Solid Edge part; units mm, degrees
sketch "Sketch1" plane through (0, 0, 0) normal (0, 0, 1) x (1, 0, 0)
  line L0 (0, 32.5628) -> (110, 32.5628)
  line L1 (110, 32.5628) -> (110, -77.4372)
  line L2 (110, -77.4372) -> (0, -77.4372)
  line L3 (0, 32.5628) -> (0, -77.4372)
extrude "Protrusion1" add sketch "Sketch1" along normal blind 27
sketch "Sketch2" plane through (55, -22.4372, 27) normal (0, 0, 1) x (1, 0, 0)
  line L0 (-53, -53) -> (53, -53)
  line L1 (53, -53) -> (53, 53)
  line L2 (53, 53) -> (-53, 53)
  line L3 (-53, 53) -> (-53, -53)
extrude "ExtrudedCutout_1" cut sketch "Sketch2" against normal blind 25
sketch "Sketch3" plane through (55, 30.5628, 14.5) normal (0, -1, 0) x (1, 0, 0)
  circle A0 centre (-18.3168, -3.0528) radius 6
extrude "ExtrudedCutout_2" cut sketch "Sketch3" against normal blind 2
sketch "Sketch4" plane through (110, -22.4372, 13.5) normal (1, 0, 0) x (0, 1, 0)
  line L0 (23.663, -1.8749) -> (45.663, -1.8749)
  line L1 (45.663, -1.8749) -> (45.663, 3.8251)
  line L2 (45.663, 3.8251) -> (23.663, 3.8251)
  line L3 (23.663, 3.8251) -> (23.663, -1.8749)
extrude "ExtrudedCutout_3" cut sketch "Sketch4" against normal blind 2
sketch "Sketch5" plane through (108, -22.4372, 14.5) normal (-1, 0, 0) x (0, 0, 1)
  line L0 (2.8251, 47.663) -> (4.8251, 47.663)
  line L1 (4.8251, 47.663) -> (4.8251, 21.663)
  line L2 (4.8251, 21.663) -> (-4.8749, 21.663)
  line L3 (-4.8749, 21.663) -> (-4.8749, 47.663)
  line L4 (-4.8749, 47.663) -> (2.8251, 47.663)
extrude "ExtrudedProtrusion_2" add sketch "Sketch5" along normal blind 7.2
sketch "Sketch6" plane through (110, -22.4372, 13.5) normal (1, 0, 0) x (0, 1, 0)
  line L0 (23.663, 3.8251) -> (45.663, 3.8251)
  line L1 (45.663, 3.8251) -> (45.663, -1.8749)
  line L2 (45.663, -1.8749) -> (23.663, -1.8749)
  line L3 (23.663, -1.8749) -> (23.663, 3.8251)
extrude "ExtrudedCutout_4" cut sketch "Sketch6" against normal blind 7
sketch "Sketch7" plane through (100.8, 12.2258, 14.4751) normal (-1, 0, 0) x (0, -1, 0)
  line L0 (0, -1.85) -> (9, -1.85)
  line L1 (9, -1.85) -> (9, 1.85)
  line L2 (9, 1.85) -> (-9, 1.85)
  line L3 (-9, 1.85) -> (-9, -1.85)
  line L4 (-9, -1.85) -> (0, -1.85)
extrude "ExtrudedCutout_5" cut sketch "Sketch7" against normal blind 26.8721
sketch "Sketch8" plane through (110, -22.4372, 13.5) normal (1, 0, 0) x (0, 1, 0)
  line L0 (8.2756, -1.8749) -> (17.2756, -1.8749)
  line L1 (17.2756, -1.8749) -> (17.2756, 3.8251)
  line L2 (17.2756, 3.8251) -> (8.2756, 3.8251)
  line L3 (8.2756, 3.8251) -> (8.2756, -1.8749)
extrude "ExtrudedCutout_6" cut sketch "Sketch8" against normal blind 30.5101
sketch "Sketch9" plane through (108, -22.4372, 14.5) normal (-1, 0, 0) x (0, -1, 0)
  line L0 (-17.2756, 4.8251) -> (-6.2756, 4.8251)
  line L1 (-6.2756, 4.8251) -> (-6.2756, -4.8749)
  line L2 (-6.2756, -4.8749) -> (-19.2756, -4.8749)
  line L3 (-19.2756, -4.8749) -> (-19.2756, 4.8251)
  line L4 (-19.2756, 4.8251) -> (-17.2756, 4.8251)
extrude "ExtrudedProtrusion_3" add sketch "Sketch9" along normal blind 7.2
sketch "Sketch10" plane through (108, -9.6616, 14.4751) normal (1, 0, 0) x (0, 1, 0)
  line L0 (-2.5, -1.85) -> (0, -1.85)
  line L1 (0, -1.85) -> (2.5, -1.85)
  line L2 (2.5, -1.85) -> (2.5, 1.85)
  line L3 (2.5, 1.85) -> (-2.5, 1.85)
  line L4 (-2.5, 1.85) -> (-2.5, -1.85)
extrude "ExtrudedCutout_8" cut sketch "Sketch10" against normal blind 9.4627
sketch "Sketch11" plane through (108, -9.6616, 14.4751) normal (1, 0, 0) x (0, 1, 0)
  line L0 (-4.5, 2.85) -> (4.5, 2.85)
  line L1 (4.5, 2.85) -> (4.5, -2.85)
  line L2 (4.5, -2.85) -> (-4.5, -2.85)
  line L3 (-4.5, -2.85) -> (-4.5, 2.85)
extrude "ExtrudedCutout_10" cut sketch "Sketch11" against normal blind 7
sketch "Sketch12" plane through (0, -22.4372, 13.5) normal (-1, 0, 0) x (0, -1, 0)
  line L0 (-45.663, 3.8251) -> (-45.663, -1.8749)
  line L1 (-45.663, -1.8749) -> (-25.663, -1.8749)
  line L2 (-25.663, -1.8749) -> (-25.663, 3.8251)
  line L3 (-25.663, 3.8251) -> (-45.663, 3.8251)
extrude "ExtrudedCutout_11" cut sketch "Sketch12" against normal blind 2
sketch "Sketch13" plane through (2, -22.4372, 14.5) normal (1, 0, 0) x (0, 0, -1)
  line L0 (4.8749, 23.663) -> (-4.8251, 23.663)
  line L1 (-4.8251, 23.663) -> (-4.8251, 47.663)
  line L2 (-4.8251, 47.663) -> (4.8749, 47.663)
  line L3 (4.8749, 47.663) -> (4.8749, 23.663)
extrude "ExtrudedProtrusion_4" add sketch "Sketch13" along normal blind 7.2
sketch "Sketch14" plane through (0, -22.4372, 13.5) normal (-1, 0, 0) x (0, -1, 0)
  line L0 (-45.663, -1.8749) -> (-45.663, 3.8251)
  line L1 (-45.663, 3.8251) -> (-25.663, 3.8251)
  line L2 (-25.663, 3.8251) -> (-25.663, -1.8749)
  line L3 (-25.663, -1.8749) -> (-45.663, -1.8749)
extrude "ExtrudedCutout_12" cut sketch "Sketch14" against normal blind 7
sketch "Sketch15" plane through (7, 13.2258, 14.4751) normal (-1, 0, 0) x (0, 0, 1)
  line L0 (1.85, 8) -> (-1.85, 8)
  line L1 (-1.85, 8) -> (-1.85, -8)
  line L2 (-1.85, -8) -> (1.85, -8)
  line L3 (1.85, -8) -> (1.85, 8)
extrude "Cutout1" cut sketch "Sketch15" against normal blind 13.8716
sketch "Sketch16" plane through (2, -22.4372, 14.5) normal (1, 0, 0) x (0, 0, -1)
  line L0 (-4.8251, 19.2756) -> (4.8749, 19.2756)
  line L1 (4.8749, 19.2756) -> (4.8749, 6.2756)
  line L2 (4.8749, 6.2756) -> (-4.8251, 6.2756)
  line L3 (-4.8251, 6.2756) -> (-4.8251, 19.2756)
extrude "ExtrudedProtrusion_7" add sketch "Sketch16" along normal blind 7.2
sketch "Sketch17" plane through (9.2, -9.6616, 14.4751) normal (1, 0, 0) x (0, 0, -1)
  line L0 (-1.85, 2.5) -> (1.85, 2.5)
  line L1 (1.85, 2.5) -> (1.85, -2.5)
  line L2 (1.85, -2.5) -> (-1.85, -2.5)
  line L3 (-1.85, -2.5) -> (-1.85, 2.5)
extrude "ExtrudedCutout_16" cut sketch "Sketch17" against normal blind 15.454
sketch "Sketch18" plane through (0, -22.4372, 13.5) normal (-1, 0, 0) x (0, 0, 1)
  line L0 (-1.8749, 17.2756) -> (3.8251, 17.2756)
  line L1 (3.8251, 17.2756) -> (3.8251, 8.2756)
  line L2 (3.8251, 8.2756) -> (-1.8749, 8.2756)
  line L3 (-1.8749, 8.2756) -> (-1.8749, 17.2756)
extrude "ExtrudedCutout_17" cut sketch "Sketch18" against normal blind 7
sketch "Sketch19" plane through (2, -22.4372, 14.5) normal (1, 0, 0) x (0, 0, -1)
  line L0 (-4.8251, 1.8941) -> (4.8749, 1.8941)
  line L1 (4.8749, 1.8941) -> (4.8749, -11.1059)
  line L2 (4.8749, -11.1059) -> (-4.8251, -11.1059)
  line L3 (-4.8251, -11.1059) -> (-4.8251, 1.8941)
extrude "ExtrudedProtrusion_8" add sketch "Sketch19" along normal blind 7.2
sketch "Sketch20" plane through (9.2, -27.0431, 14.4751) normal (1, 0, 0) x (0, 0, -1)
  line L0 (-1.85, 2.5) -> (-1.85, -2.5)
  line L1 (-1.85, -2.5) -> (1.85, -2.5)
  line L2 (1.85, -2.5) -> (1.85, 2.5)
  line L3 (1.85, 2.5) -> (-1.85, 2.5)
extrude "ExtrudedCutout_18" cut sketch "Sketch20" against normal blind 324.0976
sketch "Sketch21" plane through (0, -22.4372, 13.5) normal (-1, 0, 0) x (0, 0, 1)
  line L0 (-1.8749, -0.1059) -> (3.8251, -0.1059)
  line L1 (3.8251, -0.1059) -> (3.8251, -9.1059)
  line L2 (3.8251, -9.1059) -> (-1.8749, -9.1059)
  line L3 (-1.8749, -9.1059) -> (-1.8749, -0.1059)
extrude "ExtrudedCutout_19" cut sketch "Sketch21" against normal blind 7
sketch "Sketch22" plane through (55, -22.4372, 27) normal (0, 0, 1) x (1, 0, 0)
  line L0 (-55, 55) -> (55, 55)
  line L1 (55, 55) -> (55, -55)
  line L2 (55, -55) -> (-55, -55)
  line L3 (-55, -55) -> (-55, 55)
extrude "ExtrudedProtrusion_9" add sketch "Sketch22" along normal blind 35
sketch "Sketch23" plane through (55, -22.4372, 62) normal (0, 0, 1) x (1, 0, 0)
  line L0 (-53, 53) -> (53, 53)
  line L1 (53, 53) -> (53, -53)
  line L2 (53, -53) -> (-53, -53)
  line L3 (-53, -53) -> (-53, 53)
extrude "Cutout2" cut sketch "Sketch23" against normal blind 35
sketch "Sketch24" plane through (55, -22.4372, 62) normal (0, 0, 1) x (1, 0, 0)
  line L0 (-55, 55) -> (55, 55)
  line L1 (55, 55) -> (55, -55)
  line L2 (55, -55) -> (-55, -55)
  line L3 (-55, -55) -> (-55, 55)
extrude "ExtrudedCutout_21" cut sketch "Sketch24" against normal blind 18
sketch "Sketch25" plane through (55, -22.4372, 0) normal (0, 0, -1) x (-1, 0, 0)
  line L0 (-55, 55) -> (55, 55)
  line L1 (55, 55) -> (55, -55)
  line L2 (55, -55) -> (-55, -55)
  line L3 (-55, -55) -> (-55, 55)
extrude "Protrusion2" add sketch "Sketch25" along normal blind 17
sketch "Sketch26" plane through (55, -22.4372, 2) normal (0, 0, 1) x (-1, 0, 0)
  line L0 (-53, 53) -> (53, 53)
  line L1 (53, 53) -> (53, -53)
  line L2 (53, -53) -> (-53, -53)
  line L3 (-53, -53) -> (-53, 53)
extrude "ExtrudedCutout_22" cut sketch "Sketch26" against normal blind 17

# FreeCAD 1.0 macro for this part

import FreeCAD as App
import Part
import Sketcher
from FreeCAD import Vector
Q = App.Units.Quantity


def add_polygon(sketch, points):
    """Adds a closed chain of lines whose ends are joined by coincident constraints."""
    first, n = sketch.GeometryCount, len(points)
    for a, b in zip(points, points[1:] + points[:1]):
        sketch.addGeometry(Part.LineSegment(App.Vector(*a, 0), App.Vector(*b, 0)), False)
    for i in range(n):
        sketch.addConstraint(Sketcher.Constraint("Coincident", first + i, 2, first + (i + 1) % n, 1))

doc = App.newDocument("Part")
body = doc.addObject("PartDesign::Body", "Body")

# Sketch on XY plane
sketch1 = doc.addObject("Sketcher::SketchObject", "Sketch")
body.addObject(sketch1)
sketch1.AttachmentSupport = (doc.XY_Plane, [""])
sketch1.MapMode = "FlatFace"
add_polygon(sketch1, [(110, 33), (0, 33), (0, -77), (110, -77)])  # lines 0-3
sketch1.addConstraint([
    Sketcher.Constraint("Horizontal", 0),
    Sketcher.Constraint("Vertical", 1),
    Sketcher.Constraint("Horizontal", 2),
    Sketcher.Constraint("Vertical", 3),
    Sketcher.Constraint("PointOnObject", 0, 2, -2),
    Sketcher.Constraint("Equal", 2, 1),
    Sketcher.Constraint("DistanceX", 0, 2, 0, 1, Q("110 mm")),
    Sketcher.Constraint("DistanceY", -1, 1, 0, 2, Q("32.5628 mm")),
])
pad1 = doc.addObject("PartDesign::Pad", "Pad")
body.addObject(pad1)
pad1.Profile = sketch1
pad1.Length = 27

# Sketch on XY plane
sketch2 = doc.addObject("Sketcher::SketchObject", "Sketch001")
body.addObject(sketch2)
sketch2.AttachmentSupport = (doc.XY_Plane, [""])
sketch2.MapMode = "FlatFace"
sketch2.AttachmentOffset = App.Placement(Vector(0, 0, 27), App.Rotation())
add_polygon(sketch2, [(2, 31), (2, -75), (108, -75), (108, 31)])  # lines 0-3
sketch2.addConstraint([
    Sketcher.Constraint("Vertical", 0),
    Sketcher.Constraint("Horizontal", 1),
    Sketcher.Constraint("Vertical", 2),
    Sketcher.Constraint("Horizontal", 3),
    Sketcher.Constraint("Equal", 3, 0),
    Sketcher.Constraint("DistanceX", 1, 1, 1, 2, Q("106 mm")),
    Sketcher.Constraint("DistanceX", -1, 1, 0, 2, Q("2 mm")),
    Sketcher.Constraint("DistanceY", 0, 2, -1, 1, Q("75.4372 mm")),
])
pocket1 = doc.addObject("PartDesign::Pocket", "Pocket")
body.addObject(pocket1)
pocket1.Profile = sketch2
pocket1.Length = 25

# Sketch on XZ plane
sketch3 = doc.addObject("Sketcher::SketchObject", "Sketch002")
body.addObject(sketch3)
sketch3.AttachmentSupport = (doc.XZ_Plane, [""])
sketch3.MapMode = "FlatFace"
sketch3.AttachmentOffset = App.Placement(Vector(0, 0, -30.5628), App.Rotation())
sketch3.addGeometry(Part.Circle(Vector(37, 11, 0), Vector(0, 0, 1), 6), False)
sketch3.addConstraint([
    Sketcher.Constraint("Diameter", 0, Q("12 mm")),
    Sketcher.Constraint("DistanceX", -1, 1, 0, 3, Q("36.6832 mm")),
    Sketcher.Constraint("DistanceY", -1, 1, 0, 3, Q("11.4472 mm")),
])
pocket2 = doc.addObject("PartDesign::Pocket", "Pocket001")
body.addObject(pocket2)
pocket2.Profile = sketch3
pocket2.Length = 2

# Sketch on YZ plane
sketch4 = doc.addObject("Sketcher::SketchObject", "Sketch003")
body.addObject(sketch4)
sketch4.AttachmentSupport = (doc.YZ_Plane, [""])
sketch4.MapMode = "FlatFace"
sketch4.AttachmentOffset = App.Placement(Vector(0, 0, 110), App.Rotation())
add_polygon(sketch4, [(1, 17), (1, 12), (23, 12), (23, 17)])  # lines 0-3
sketch4.addConstraint([
    Sketcher.Constraint("Vertical", 0),
    Sketcher.Constraint("Horizontal", 1),
    Sketcher.Constraint("Vertical", 2),
    Sketcher.Constraint("Horizontal", 3),
    Sketcher.Constraint("DistanceX", 1, 1, 1, 2, Q("22 mm")),
    Sketcher.Constraint("DistanceY", 0, 2, 0, 1, Q("5.7 mm")),
    Sketcher.Constraint("DistanceY", -1, 1, 0, 2, Q("11.625 mm")),
    Sketcher.Constraint("DistanceX", -1, 1, 0, 2, Q("1.2258 mm")),
])
pocket3 = doc.addObject("PartDesign::Pocket", "Pocket002")
body.addObject(pocket3)
pocket3.Profile = sketch4
pocket3.Length = 2

# Sketch on YZ plane
sketch5 = doc.addObject("Sketcher::SketchObject", "Sketch004")
body.addObject(sketch5)
sketch5.AttachmentSupport = (doc.YZ_Plane, [""])
sketch5.MapMode = "FlatFace"
sketch5.AttachmentOffset = App.Placement(Vector(0, 0, 108), App.Rotation())
add_polygon(sketch5, [(25, 19), (25, 10), (-1, 10), (-1, 19)])  # lines 0-3
sketch5.addConstraint([
    Sketcher.Constraint("Vertical", 0),
    Sketcher.Constraint("Horizontal", 1),
    Sketcher.Constraint("Vertical", 2),
    Sketcher.Constraint("Horizontal", 3),
    Sketcher.Constraint("DistanceX", 1, 2, 1, 1, Q("26 mm")),
    Sketcher.Constraint("DistanceY", 0, 2, 0, 1, Q("9.7 mm")),
    Sketcher.Constraint("DistanceY", -1, 1, 0, 2, Q("9.625 mm")),
    Sketcher.Constraint("DistanceX", -1, 1, 0, 2, Q("25.2258 mm")),
])
pad2 = doc.addObject("PartDesign::Pad", "Pad001")
body.addObject(pad2)
pad2.Profile = sketch5
pad2.Length = 7.2
pad2.Reversed = True

# Sketch on YZ plane
sketch6 = doc.addObject("Sketcher::SketchObject", "Sketch005")
body.addObject(sketch6)
sketch6.AttachmentSupport = (doc.YZ_Plane, [""])
sketch6.MapMode = "FlatFace"
sketch6.AttachmentOffset = App.Placement(Vector(0, 0, 110), App.Rotation())
add_polygon(sketch6, [(23, 17), (1, 17), (1, 12), (23, 12)])  # lines 0-3
sketch6.addConstraint([
    Sketcher.Constraint("Horizontal", 0),
    Sketcher.Constraint("Vertical", 1),
    Sketcher.Constraint("Horizontal", 2),
    Sketcher.Constraint("Vertical", 3),
    Sketcher.Constraint("DistanceX", 0, 2, 0, 1, Q("22 mm")),
    Sketcher.Constraint("DistanceY", 1, 2, 1, 1, Q("5.7 mm")),
    Sketcher.Constraint("DistanceY", -1, 1, 0, 2, Q("17.325 mm")),
    Sketcher.Constraint("DistanceX", -1, 1, 0, 2, Q("1.2258 mm")),
])
pocket4 = doc.addObject("PartDesign::Pocket", "Pocket003")
body.addObject(pocket4)
pocket4.Profile = sketch6
pocket4.Length = 7

# Sketch on YZ plane
sketch7 = doc.addObject("Sketcher::SketchObject", "Sketch006")
body.addObject(sketch7)
sketch7.AttachmentSupport = (doc.YZ_Plane, [""])
sketch7.MapMode = "FlatFace"
sketch7.AttachmentOffset = App.Placement(Vector(0, 0, 100.8), App.Rotation())
add_polygon(sketch7, [(21.2, 12.6), (3.2, 12.6), (3.2, 16.3), (21.2, 16.3)])  # lines 0-3
sketch7.addConstraint([
    Sketcher.Constraint("Horizontal", 0),
    Sketcher.Constraint("Vertical", 1),
    Sketcher.Constraint("Horizontal", 2),
    Sketcher.Constraint("Vertical", 3),
    Sketcher.Constraint("DistanceX", 0, 2, 0, 1, Q("18 mm")),
    Sketcher.Constraint("DistanceY", 1, 1, 1, 2, Q("3.7 mm")),
    Sketcher.Constraint("DistanceY", -1, 1, 0, 2, Q("12.625 mm")),
    Sketcher.Constraint("DistanceX", -1, 1, 0, 2, Q("3.2258 mm")),
])
pocket5 = doc.addObject("PartDesign::Pocket", "Pocket004")
body.addObject(pocket5)
pocket5.Profile = sketch7
pocket5.Length = 26.8721
pocket5.Reversed = True

# Sketch on YZ plane
sketch8 = doc.addObject("Sketcher::SketchObject", "Sketch007")
body.addObject(sketch8)
sketch8.AttachmentSupport = (doc.YZ_Plane, [""])
sketch8.MapMode = "FlatFace"
sketch8.AttachmentOffset = App.Placement(Vector(0, 0, 110), App.Rotation())
add_polygon(sketch8, [(-14, 17), (-14, 12), (-5, 12), (-5, 17)])  # lines 0-3
sketch8.addConstraint([
    Sketcher.Constraint("Vertical", 0),
    Sketcher.Constraint("Horizontal", 1),
    Sketcher.Constraint("Vertical", 2),
    Sketcher.Constraint("Horizontal", 3),
    Sketcher.Constraint("DistanceX", 1, 1, 1, 2, Q("9 mm")),
    Sketcher.Constraint("DistanceY", 0, 2, 0, 1, Q("5.7 mm")),
    Sketcher.Constraint("DistanceY", -1, 1, 0, 2, Q("11.625 mm")),
    Sketcher.Constraint("DistanceX", 0, 2, -1, 1, Q("14.1616 mm")),
])
pocket6 = doc.addObject("PartDesign::Pocket", "Pocket005")
body.addObject(pocket6)
pocket6.Profile = sketch8
pocket6.Length = 30.5101

# Sketch on YZ plane
sketch9 = doc.addObject("Sketcher::SketchObject", "Sketch008")
body.addObject(sketch9)
sketch9.AttachmentSupport = (doc.YZ_Plane, [""])
sketch9.MapMode = "FlatFace"
sketch9.AttachmentOffset = App.Placement(Vector(0, 0, 108), App.Rotation())
add_polygon(sketch9, [(-16, 19), (-3, 19), (-3, 10), (-16, 10)])  # lines 0-3
sketch9.addConstraint([
    Sketcher.Constraint("Horizontal", 0),
    Sketcher.Constraint("Vertical", 1),
    Sketcher.Constraint("Horizontal", 2),
    Sketcher.Constraint("Vertical", 3),
    Sketcher.Constraint("DistanceX", 0, 1, 0, 2, Q("13 mm")),
    Sketcher.Constraint("DistanceY", 1, 2, 1, 1, Q("9.7 mm")),
    Sketcher.Constraint("DistanceY", -1, 1, 0, 2, Q("19.325 mm")),
    Sketcher.Constraint("DistanceX", 0, 2, -1, 1, Q("3.1616 mm")),
])
pad3 = doc.addObject("PartDesign::Pad", "Pad002")
body.addObject(pad3)
pad3.Profile = sketch9
pad3.Length = 7.2
pad3.Reversed = True

# Sketch on YZ plane
sketch10 = doc.addObject("Sketcher::SketchObject", "Sketch009")
body.addObject(sketch10)
sketch10.AttachmentSupport = (doc.YZ_Plane, [""])
sketch10.MapMode = "FlatFace"
sketch10.AttachmentOffset = App.Placement(Vector(0, 0, 108), App.Rotation())
add_polygon(sketch10, [(-12.2, 16.3), (-12.2, 12.6), (-7.2, 12.6), (-7.2, 16.3)])  # lines 0-3
sketch10.addConstraint([
    Sketcher.Constraint("Vertical", 0),
    Sketcher.Constraint("Horizontal", 1),
    Sketcher.Constraint("Vertical", 2),
    Sketcher.Constraint("Horizontal", 3),
    Sketcher.Constraint("DistanceX", 1, 1, 1, 2, Q("5 mm")),
    Sketcher.Constraint("DistanceY", 0, 2, 0, 1, Q("3.7 mm")),
    Sketcher.Constraint("DistanceY", -1, 1, 0, 2, Q("12.625 mm")),
    Sketcher.Constraint("DistanceX", 0, 2, -1, 1, Q("12.1616 mm")),
])
pocket7 = doc.addObject("PartDesign::Pocket", "Pocket006")
body.addObject(pocket7)
pocket7.Profile = sketch10
pocket7.Length = 9.4627

# Sketch on YZ plane
sketch11 = doc.addObject("Sketcher::SketchObject", "Sketch010")
body.addObject(sketch11)
sketch11.AttachmentSupport = (doc.YZ_Plane, [""])
sketch11.MapMode = "FlatFace"
sketch11.AttachmentOffset = App.Placement(Vector(0, 0, 108), App.Rotation())
add_polygon(sketch11, [(-5, 17), (-14, 17), (-14, 12), (-5, 12)])  # lines 0-3
sketch11.addConstraint([
    Sketcher.Constraint("Horizontal", 0),
    Sketcher.Constraint("Vertical", 1),
    Sketcher.Constraint("Horizontal", 2),
    Sketcher.Constraint("Vertical", 3),
    Sketcher.Constraint("DistanceX", 0, 2, 0, 1, Q("9 mm")),
    Sketcher.Constraint("DistanceY", 1, 2, 1, 1, Q("5.7 mm")),
    Sketcher.Constraint("DistanceY", -1, 1, 0, 2, Q("17.325 mm")),
    Sketcher.Constraint("DistanceX", 0, 2, -1, 1, Q("14.1616 mm")),
])
pocket8 = doc.addObject("PartDesign::Pocket", "Pocket007")
body.addObject(pocket8)
pocket8.Profile = sketch11
pocket8.Length = 7

# Sketch on YZ plane
sketch12 = doc.addObject("Sketcher::SketchObject", "Sketch011")
body.addObject(sketch12)
sketch12.AttachmentSupport = (doc.YZ_Plane, [""])
sketch12.MapMode = "FlatFace"
add_polygon(sketch12, [(3, 17), (23, 17), (23, 12), (3, 12)])  # lines 0-3
sketch12.addConstraint([
    Sketcher.Constraint("Horizontal", 0),
    Sketcher.Constraint("Vertical", 1),
    Sketcher.Constraint("Horizontal", 2),
    Sketcher.Constraint("Vertical", 3),
    Sketcher.Constraint("DistanceX", 0, 1, 0, 2, Q("20 mm")),
    Sketcher.Constraint("DistanceY", 1, 2, 1, 1, Q("5.7 mm")),
    Sketcher.Constraint("DistanceY", -1, 1, 0, 2, Q("17.325 mm")),
    Sketcher.Constraint("DistanceX", -1, 1, 0, 2, Q("23.2258 mm")),
])
pocket9 = doc.addObject("PartDesign::Pocket", "Pocket008")
body.addObject(pocket9)
pocket9.Profile = sketch12
pocket9.Length = 2
pocket9.Reversed = True

# Sketch on YZ plane
sketch13 = doc.addObject("Sketcher::SketchObject", "Sketch012")
body.addObject(sketch13)
sketch13.AttachmentSupport = (doc.YZ_Plane, [""])
sketch13.MapMode = "FlatFace"
sketch13.AttachmentOffset = App.Placement(Vector(0, 0, 2), App.Rotation())
add_polygon(sketch13, [(1, 19), (1, 10), (25, 10), (25, 19)])  # lines 0-3
sketch13.addConstraint([
    Sketcher.Constraint("Vertical", 0),
    Sketcher.Constraint("Horizontal", 1),
    Sketcher.Constraint("Vertical", 2),
    Sketcher.Constraint("Horizontal", 3),
    Sketcher.Constraint("DistanceX", 1, 1, 1, 2, Q("24 mm")),
    Sketcher.Constraint("DistanceY", 0, 2, 0, 1, Q("9.7 mm")),
    Sketcher.Constraint("DistanceY", -1, 1, 0, 2, Q("9.625 mm")),
    Sketcher.Constraint("DistanceX", -1, 1, 0, 2, Q("1.2258 mm")),
])
pad4 = doc.addObject("PartDesign::Pad", "Pad003")
body.addObject(pad4)
pad4.Profile = sketch13
pad4.Length = 7.2

# Sketch on YZ plane
sketch14 = doc.addObject("Sketcher::SketchObject", "Sketch013")
body.addObject(sketch14)
sketch14.AttachmentSupport = (doc.YZ_Plane, [""])
sketch14.MapMode = "FlatFace"
add_polygon(sketch14, [(23, 17), (23, 12), (3, 12), (3, 17)])  # lines 0-3
sketch14.addConstraint([
    Sketcher.Constraint("Vertical", 0),
    Sketcher.Constraint("Horizontal", 1),
    Sketcher.Constraint("Vertical", 2),
    Sketcher.Constraint("Horizontal", 3),
    Sketcher.Constraint("DistanceX", 1, 2, 1, 1, Q("20 mm")),
    Sketcher.Constraint("DistanceY", 0, 2, 0, 1, Q("5.7 mm")),
    Sketcher.Constraint("DistanceY", -1, 1, 0, 2, Q("11.625 mm")),
    Sketcher.Constraint("DistanceX", -1, 1, 0, 2, Q("23.2258 mm")),
])
pocket10 = doc.addObject("PartDesign::Pocket", "Pocket009")
body.addObject(pocket10)
pocket10.Profile = sketch14
pocket10.Length = 7
pocket10.Reversed = True

# Sketch on YZ plane
sketch15 = doc.addObject("Sketcher::SketchObject", "Sketch014")
body.addObject(sketch15)
sketch15.AttachmentSupport = (doc.YZ_Plane, [""])
sketch15.MapMode = "FlatFace"
sketch15.AttachmentOffset = App.Placement(Vector(0, 0, 7), App.Rotation())
add_polygon(sketch15, [(5.2, 16.3), (21.2, 16.3), (21.2, 12.6), (5.2, 12.6)])  # lines 0-3
sketch15.addConstraint([
    Sketcher.Constraint("Horizontal", 0),
    Sketcher.Constraint("Vertical", 1),
    Sketcher.Constraint("Horizontal", 2),
    Sketcher.Constraint("Vertical", 3),
    Sketcher.Constraint("DistanceX", 0, 1, 0, 2, Q("16 mm")),
    Sketcher.Constraint("DistanceY", 1, 2, 1, 1, Q("3.7 mm")),
    Sketcher.Constraint("DistanceY", -1, 1, 0, 2, Q("16.325 mm")),
    Sketcher.Constraint("DistanceX", -1, 1, 0, 2, Q("21.2258 mm")),
])
pocket11 = doc.addObject("PartDesign::Pocket", "Pocket010")
body.addObject(pocket11)
pocket11.Profile = sketch15
pocket11.Length = 13.8716
pocket11.Reversed = True

# Sketch on YZ plane
sketch16 = doc.addObject("Sketcher::SketchObject", "Sketch015")
body.addObject(sketch16)
sketch16.AttachmentSupport = (doc.YZ_Plane, [""])
sketch16.MapMode = "FlatFace"
sketch16.AttachmentOffset = App.Placement(Vector(0, 0, 2), App.Rotation())
add_polygon(sketch16, [(-3, 10), (-3, 19), (-16, 19), (-16, 10)])  # lines 0-3
sketch16.addConstraint([
    Sketcher.Constraint("Vertical", 0),
    Sketcher.Constraint("Horizontal", 1),
    Sketcher.Constraint("Vertical", 2),
    Sketcher.Constraint("Horizontal", 3),
    Sketcher.Constraint("DistanceX", 1, 2, 1, 1, Q("13 mm")),
    Sketcher.Constraint("DistanceY", 0, 1, 0, 2, Q("9.7 mm")),
    Sketcher.Constraint("DistanceY", -1, 1, 0, 2, Q("19.325 mm")),
    Sketcher.Constraint("DistanceX", 0, 2, -1, 1, Q("3.1616 mm")),
])
pad5 = doc.addObject("PartDesign::Pad", "Pad004")
body.addObject(pad5)
pad5.Profile = sketch16
pad5.Length = 7.2

# Sketch on YZ plane
sketch17 = doc.addObject("Sketcher::SketchObject", "Sketch016")
body.addObject(sketch17)
sketch17.AttachmentSupport = (doc.YZ_Plane, [""])
sketch17.MapMode = "FlatFace"
sketch17.AttachmentOffset = App.Placement(Vector(0, 0, 9.2), App.Rotation())
add_polygon(sketch17, [(-7.2, 12.6), (-7.2, 16.3), (-12.2, 16.3), (-12.2, 12.6)])  # lines 0-3
sketch17.addConstraint([
    Sketcher.Constraint("Vertical", 0),
    Sketcher.Constraint("Horizontal", 1),
    Sketcher.Constraint("Vertical", 2),
    Sketcher.Constraint("Horizontal", 3),
    Sketcher.Constraint("DistanceX", 1, 2, 1, 1, Q("5 mm")),
    Sketcher.Constraint("DistanceY", 0, 1, 0, 2, Q("3.7 mm")),
    Sketcher.Constraint("DistanceY", -1, 1, 0, 2, Q("16.325 mm")),
    Sketcher.Constraint("DistanceX", 0, 2, -1, 1, Q("7.1616 mm")),
])
pocket12 = doc.addObject("PartDesign::Pocket", "Pocket011")
body.addObject(pocket12)
pocket12.Profile = sketch17
pocket12.Length = 15.454

# Sketch on YZ plane
sketch18 = doc.addObject("Sketcher::SketchObject", "Sketch017")
body.addObject(sketch18)
sketch18.AttachmentSupport = (doc.YZ_Plane, [""])
sketch18.MapMode = "FlatFace"
add_polygon(sketch18, [(-5, 17), (-5, 12), (-14, 12), (-14, 17)])  # lines 0-3
sketch18.addConstraint([
    Sketcher.Constraint("Vertical", 0),
    Sketcher.Constraint("Horizontal", 1),
    Sketcher.Constraint("Vertical", 2),
    Sketcher.Constraint("Horizontal", 3),
    Sketcher.Constraint("DistanceX", 1, 2, 1, 1, Q("9 mm")),
    Sketcher.Constraint("DistanceY", 0, 2, 0, 1, Q("5.7 mm")),
    Sketcher.Constraint("DistanceY", -1, 1, 0, 2, Q("11.625 mm")),
    Sketcher.Constraint("DistanceX", 0, 2, -1, 1, Q("5.1616 mm")),
])
pocket13 = doc.addObject("PartDesign::Pocket", "Pocket012")
body.addObject(pocket13)
pocket13.Profile = sketch18
pocket13.Length = 7
pocket13.Reversed = True

# Sketch on YZ plane
sketch19 = doc.addObject("Sketcher::SketchObject", "Sketch018")
body.addObject(sketch19)
sketch19.AttachmentSupport = (doc.YZ_Plane, [""])
sketch19.MapMode = "FlatFace"
sketch19.AttachmentOffset = App.Placement(Vector(0, 0, 2), App.Rotation())
add_polygon(sketch19, [(-21, 10), (-21, 19), (-34, 19), (-34, 10)])  # lines 0-3
sketch19.addConstraint([
    Sketcher.Constraint("Vertical", 0),
    Sketcher.Constraint("Horizontal", 1),
    Sketcher.Constraint("Vertical", 2),
    Sketcher.Constraint("Horizontal", 3),
    Sketcher.Constraint("DistanceX", 1, 2, 1, 1, Q("13 mm")),
    Sketcher.Constraint("DistanceY", 0, 1, 0, 2, Q("9.7 mm")),
    Sketcher.Constraint("DistanceX", 0, 2, -1, 1, Q("20.543 mm")),
    Sketcher.Constraint("DistanceY", -1, 1, 0, 2, Q("19.325 mm")),
])
pad6 = doc.addObject("PartDesign::Pad", "Pad005")
body.addObject(pad6)
pad6.Profile = sketch19
pad6.Length = 7.2

# Sketch on YZ plane
sketch20 = doc.addObject("Sketcher::SketchObject", "Sketch019")
body.addObject(sketch20)
sketch20.AttachmentSupport = (doc.YZ_Plane, [""])
sketch20.MapMode = "FlatFace"
sketch20.AttachmentOffset = App.Placement(Vector(0, 0, 9.2), App.Rotation())
add_polygon(sketch20, [(-24.5, 12.6), (-24.5, 16.3), (-29.5, 16.3), (-29.5, 12.6)])  # lines 0-3
sketch20.addConstraint([
    Sketcher.Constraint("Vertical", 0),
    Sketcher.Constraint("Horizontal", 1),
    Sketcher.Constraint("Vertical", 2),
    Sketcher.Constraint("Horizontal", 3),
    Sketcher.Constraint("DistanceX", 1, 2, 1, 1, Q("5 mm")),
    Sketcher.Constraint("DistanceY", 0, 1, 0, 2, Q("3.7 mm")),
    Sketcher.Constraint("DistanceX", 0, 2, -1, 1, Q("24.543 mm")),
    Sketcher.Constraint("DistanceY", -1, 1, 0, 2, Q("16.325 mm")),
])
pocket14 = doc.addObject("PartDesign::Pocket", "Pocket013")
body.addObject(pocket14)
pocket14.Profile = sketch20
pocket14.Length = 324.0976

# Sketch on YZ plane
sketch21 = doc.addObject("Sketcher::SketchObject", "Sketch020")
body.addObject(sketch21)
sketch21.AttachmentSupport = (doc.YZ_Plane, [""])
sketch21.MapMode = "FlatFace"
add_polygon(sketch21, [(-23, 17), (-23, 12), (-32, 12), (-32, 17)])  # lines 0-3
sketch21.addConstraint([
    Sketcher.Constraint("Vertical", 0),
    Sketcher.Constraint("Horizontal", 1),
    Sketcher.Constraint("Vertical", 2),
    Sketcher.Constraint("Horizontal", 3),
    Sketcher.Constraint("DistanceX", 1, 2, 1, 1, Q("9 mm")),
    Sketcher.Constraint("DistanceY", 0, 2, 0, 1, Q("5.7 mm")),
    Sketcher.Constraint("DistanceX", 0, 2, -1, 1, Q("22.543 mm")),
    Sketcher.Constraint("DistanceY", -1, 1, 0, 2, Q("11.625 mm")),
])
pocket15 = doc.addObject("PartDesign::Pocket", "Pocket014")
body.addObject(pocket15)
pocket15.Profile = sketch21
pocket15.Length = 7
pocket15.Reversed = True

# Sketch on XY plane
sketch22 = doc.addObject("Sketcher::SketchObject", "Sketch021")
body.addObject(sketch22)
sketch22.AttachmentSupport = (doc.XY_Plane, [""])
sketch22.MapMode = "FlatFace"
sketch22.AttachmentOffset = App.Placement(Vector(0, 0, 27), App.Rotation())
add_polygon(sketch22, [(110, 33), (0, 33), (0, -77), (110, -77)])  # lines 0-3
sketch22.addConstraint([
    Sketcher.Constraint("Horizontal", 0),
    Sketcher.Constraint("Vertical", 1),
    Sketcher.Constraint("Horizontal", 2),
    Sketcher.Constraint("Vertical", 3),
    Sketcher.Constraint("PointOnObject", 0, 2, -2),
    Sketcher.Constraint("Equal", 2, 1),
    Sketcher.Constraint("DistanceX", 0, 2, 0, 1, Q("110 mm")),
    Sketcher.Constraint("DistanceY", -1, 1, 0, 2, Q("32.5628 mm")),
])
pad7 = doc.addObject("PartDesign::Pad", "Pad006")
body.addObject(pad7)
pad7.Profile = sketch22
pad7.Length = 35

# Sketch on XY plane
sketch23 = doc.addObject("Sketcher::SketchObject", "Sketch022")
body.addObject(sketch23)
sketch23.AttachmentSupport = (doc.XY_Plane, [""])
sketch23.MapMode = "FlatFace"
sketch23.AttachmentOffset = App.Placement(Vector(0, 0, 62), App.Rotation())
add_polygon(sketch23, [(108, 31), (2, 31), (2, -75), (108, -75)])  # lines 0-3
sketch23.addConstraint([
    Sketcher.Constraint("Horizontal", 0),
    Sketcher.Constraint("Vertical", 1),
    Sketcher.Constraint("Horizontal", 2),
    Sketcher.Constraint("Vertical", 3),
    Sketcher.Constraint("Equal", 2, 1),
    Sketcher.Constraint("DistanceX", 0, 2, 0, 1, Q("106 mm")),
    Sketcher.Constraint("DistanceX", -1, 1, 0, 2, Q("2 mm")),
    Sketcher.Constraint("DistanceY", -1, 1, 0, 2, Q("30.5628 mm")),
])
pocket16 = doc.addObject("PartDesign::Pocket", "Pocket015")
body.addObject(pocket16)
pocket16.Profile = sketch23
pocket16.Length = 35

# Sketch on XY plane
sketch24 = doc.addObject("Sketcher::SketchObject", "Sketch023")
body.addObject(sketch24)
sketch24.AttachmentSupport = (doc.XY_Plane, [""])
sketch24.MapMode = "FlatFace"
sketch24.AttachmentOffset = App.Placement(Vector(0, 0, 62), App.Rotation())
add_polygon(sketch24, [(110, 33), (0, 33), (0, -77), (110, -77)])  # lines 0-3
sketch24.addConstraint([
    Sketcher.Constraint("Horizontal", 0),
    Sketcher.Constraint("Vertical", 1),
    Sketcher.Constraint("Horizontal", 2),
    Sketcher.Constraint("Vertical", 3),
    Sketcher.Constraint("PointOnObject", 0, 2, -2),
    Sketcher.Constraint("Equal", 2, 1),
    Sketcher.Constraint("DistanceX", 0, 2, 0, 1, Q("110 mm")),
    Sketcher.Constraint("DistanceY", -1, 1, 0, 2, Q("32.5628 mm")),
])
pocket17 = doc.addObject("PartDesign::Pocket", "Pocket016")
body.addObject(pocket17)
pocket17.Profile = sketch24
pocket17.Length = 18

# Sketch on XY plane
sketch25 = doc.addObject("Sketcher::SketchObject", "Sketch024")
body.addObject(sketch25)
sketch25.AttachmentSupport = (doc.XY_Plane, [""])
sketch25.MapMode = "FlatFace"
add_polygon(sketch25, [(0, 33), (110, 33), (110, -77), (0, -77)])  # lines 0-3
sketch25.addConstraint([
    Sketcher.Constraint("Horizontal", 0),
    Sketcher.Constraint("Vertical", 1),
    Sketcher.Constraint("Horizontal", 2),
    Sketcher.Constraint("Vertical", 3),
    Sketcher.Constraint("PointOnObject", 2, 2, -2),
    Sketcher.Constraint("Equal", 2, 1),
    Sketcher.Constraint("DistanceX", 0, 1, 0, 2, Q("110 mm")),
    Sketcher.Constraint("DistanceY", -1, 1, 0, 2, Q("32.5628 mm")),
])
pad8 = doc.addObject("PartDesign::Pad", "Pad007")
body.addObject(pad8)
pad8.Profile = sketch25
pad8.Length = 17
pad8.Reversed = True

# Sketch on XY plane
sketch26 = doc.addObject("Sketcher::SketchObject", "Sketch025")
body.addObject(sketch26)
sketch26.AttachmentSupport = (doc.XY_Plane, [""])
sketch26.MapMode = "FlatFace"
sketch26.AttachmentOffset = App.Placement(Vector(0, 0, 2), App.Rotation())
add_polygon(sketch26, [(2, -75), (108, -75), (108, 31), (2, 31)])  # lines 0-3
sketch26.addConstraint([
    Sketcher.Constraint("Horizontal", 0),
    Sketcher.Constraint("Vertical", 1),
    Sketcher.Constraint("Horizontal", 2),
    Sketcher.Constraint("Vertical", 3),
    Sketcher.Constraint("Equal", 2, 1),
    Sketcher.Constraint("DistanceX", 0, 1, 0, 2, Q("106 mm")),
    Sketcher.Constraint("DistanceX", -1, 1, 0, 2, Q("108 mm")),
    Sketcher.Constraint("DistanceY", 0, 2, -1, 1, Q("75.4372 mm")),
])
pocket18 = doc.addObject("PartDesign::Pocket", "Pocket017")
body.addObject(pocket18)
pocket18.Profile = sketch26
pocket18.Length = 17

doc.recompute()
